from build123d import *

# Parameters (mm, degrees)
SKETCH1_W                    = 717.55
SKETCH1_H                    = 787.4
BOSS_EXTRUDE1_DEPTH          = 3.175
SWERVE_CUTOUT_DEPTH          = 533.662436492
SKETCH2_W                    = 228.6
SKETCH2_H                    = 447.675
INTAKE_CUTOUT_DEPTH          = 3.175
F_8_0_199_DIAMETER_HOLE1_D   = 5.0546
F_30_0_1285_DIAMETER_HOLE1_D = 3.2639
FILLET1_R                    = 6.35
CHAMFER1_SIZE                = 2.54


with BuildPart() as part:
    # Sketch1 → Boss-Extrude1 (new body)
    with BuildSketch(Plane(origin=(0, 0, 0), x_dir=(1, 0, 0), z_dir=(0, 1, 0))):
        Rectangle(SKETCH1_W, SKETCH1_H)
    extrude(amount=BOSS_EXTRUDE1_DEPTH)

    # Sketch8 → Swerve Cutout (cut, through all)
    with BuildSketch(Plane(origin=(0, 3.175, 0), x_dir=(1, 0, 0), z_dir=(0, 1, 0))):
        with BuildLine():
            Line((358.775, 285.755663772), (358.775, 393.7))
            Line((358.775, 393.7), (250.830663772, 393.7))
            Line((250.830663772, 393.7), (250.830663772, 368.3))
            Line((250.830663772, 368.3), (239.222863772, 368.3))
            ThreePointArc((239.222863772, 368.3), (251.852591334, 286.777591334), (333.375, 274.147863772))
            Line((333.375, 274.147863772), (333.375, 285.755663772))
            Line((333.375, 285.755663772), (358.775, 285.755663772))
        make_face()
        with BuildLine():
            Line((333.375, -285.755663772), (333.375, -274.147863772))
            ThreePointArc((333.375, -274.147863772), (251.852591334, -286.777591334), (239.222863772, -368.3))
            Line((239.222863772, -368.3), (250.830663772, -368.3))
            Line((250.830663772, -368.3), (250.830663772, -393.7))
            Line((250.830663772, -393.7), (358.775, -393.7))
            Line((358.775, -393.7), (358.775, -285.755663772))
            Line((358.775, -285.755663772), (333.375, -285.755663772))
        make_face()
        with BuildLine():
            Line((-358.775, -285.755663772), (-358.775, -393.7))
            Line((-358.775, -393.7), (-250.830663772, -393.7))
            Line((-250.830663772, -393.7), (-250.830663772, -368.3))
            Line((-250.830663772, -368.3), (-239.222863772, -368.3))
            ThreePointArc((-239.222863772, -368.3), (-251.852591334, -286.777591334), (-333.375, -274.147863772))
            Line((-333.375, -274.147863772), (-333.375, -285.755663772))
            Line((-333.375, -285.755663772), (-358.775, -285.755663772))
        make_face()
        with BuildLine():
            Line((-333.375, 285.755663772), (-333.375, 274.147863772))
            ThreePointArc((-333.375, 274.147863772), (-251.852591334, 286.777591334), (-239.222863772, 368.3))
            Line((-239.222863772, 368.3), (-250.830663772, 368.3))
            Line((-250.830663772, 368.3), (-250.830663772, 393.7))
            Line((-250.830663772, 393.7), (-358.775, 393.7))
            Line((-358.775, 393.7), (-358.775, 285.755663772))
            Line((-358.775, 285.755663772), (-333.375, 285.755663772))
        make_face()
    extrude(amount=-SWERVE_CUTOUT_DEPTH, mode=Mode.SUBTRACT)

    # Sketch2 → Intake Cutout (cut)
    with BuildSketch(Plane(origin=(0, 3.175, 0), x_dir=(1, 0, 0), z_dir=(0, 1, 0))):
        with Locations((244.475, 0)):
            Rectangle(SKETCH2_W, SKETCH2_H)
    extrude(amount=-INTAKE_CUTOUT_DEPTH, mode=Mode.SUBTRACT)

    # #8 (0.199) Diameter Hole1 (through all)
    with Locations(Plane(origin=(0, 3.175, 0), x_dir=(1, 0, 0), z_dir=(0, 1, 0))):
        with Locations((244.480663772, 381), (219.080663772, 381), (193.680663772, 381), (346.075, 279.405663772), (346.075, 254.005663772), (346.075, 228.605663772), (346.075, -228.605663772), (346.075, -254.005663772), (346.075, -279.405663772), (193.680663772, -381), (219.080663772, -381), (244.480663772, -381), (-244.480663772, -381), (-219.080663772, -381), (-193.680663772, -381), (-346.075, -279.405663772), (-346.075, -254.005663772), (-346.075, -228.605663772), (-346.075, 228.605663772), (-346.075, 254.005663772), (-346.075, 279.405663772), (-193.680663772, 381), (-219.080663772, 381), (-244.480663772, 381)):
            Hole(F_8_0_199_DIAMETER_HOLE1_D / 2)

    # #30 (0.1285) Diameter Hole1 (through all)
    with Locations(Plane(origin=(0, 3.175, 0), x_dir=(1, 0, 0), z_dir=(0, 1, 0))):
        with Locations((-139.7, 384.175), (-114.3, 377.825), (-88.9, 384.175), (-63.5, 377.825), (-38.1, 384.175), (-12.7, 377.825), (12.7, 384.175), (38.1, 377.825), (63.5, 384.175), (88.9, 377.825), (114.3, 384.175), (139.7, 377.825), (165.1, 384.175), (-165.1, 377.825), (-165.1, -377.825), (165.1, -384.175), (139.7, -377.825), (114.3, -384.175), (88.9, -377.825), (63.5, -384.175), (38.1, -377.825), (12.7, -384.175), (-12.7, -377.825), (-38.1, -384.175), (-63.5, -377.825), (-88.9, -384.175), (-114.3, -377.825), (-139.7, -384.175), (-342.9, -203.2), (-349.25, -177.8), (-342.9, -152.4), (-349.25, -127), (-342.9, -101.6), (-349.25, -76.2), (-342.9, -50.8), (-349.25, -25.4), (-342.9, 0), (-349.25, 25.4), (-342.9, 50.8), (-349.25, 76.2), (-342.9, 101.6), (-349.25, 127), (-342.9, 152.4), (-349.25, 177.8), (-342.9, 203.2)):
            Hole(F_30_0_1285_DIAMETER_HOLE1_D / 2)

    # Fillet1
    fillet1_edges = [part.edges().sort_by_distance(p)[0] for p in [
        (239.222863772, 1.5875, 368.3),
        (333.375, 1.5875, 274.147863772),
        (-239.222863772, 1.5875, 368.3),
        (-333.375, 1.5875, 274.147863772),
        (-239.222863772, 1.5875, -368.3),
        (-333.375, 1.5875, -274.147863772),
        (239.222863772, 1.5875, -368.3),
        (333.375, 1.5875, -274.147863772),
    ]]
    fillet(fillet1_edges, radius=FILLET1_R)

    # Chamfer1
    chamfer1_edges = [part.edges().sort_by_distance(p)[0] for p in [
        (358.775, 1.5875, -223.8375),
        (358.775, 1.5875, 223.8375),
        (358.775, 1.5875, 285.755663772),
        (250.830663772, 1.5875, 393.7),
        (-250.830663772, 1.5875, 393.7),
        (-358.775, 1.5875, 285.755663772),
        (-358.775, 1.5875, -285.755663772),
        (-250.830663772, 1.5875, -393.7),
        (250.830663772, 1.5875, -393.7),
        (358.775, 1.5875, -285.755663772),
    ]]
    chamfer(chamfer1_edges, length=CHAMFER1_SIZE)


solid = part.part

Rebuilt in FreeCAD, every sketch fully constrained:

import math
import FreeCAD as App
import Part
import Sketcher
from FreeCAD import Vector
Q = App.Units.Quantity


def edges_at(feature, points):
    """Names of the edges that pass closest to the given points."""
    edges = feature.Shape.Edges
    near = lambda p: min(range(len(edges)), key=lambda i: edges[i].distToShape(Part.Vertex(*p))[0])
    return sorted({f"Edge{near(p) + 1}" for p in points})


def add_polygon(sketch, points):
    """Adds a closed chain of lines whose ends are joined by coincident constraints."""
    first, n = sketch.GeometryCount, len(points)
    for a, b in zip(points, points[1:] + points[:1]):
        sketch.addGeometry(Part.LineSegment(App.Vector(*a, 0), App.Vector(*b, 0)), False)
    for i in range(n):
        sketch.addConstraint(Sketcher.Constraint("Coincident", first + i, 2, first + (i + 1) % n, 1))

doc = App.newDocument("Part")
body = doc.addObject("PartDesign::Body", "Body")

# Sketch on XZ plane
sketch1 = body.newObject("Sketcher::SketchObject", "Sketch")
sketch1.AttachmentSupport = (doc.getObject("XZ_Plane"), [""])
sketch1.MapMode = "FlatFace"
add_polygon(sketch1, [(-358.775, -393.7), (-358.775, 393.7), (358.775, 393.7), (358.775, -393.7)])  # lines 0-3
sketch1.addConstraint(Sketcher.Constraint("Vertical", 0))
sketch1.addConstraint(Sketcher.Constraint("Horizontal", 1))
sketch1.addConstraint(Sketcher.Constraint("Vertical", 2))
sketch1.addConstraint(Sketcher.Constraint("Horizontal", 3))
sketch1.addConstraint(Sketcher.Constraint("Symmetric", 0, 2, 2, 2, -1, 1))
sketch1.addConstraint(Sketcher.Constraint("DistanceY", 0, 1, 0, 2, Q("31 in")))
sketch1.addConstraint(Sketcher.Constraint("DistanceX", 1, 1, 1, 2, Q("28.25 in")))
pad1 = body.newObject("PartDesign::Pad", "Pad")
pad1.Profile = sketch1
pad1.Length = Q("0.125 in")
pad1.Reversed = True

# Sketch on XZ plane
sketch2 = body.newObject("Sketcher::SketchObject", "Sketch001")
sketch2.AttachmentSupport = (doc.getObject("XZ_Plane"), [""])
sketch2.MapMode = "FlatFace"
sketch2.AttachmentOffset = App.Placement(Vector(0, 0, -0.125 * 25.4), App.Rotation())
sketch2.addGeometry(Part.LineSegment(Vector(358.775, -285.755664, 0), Vector(358.775, -393.7, 0)), False)
sketch2.addGeometry(Part.LineSegment(Vector(358.775, -393.7, 0), Vector(250.830664, -393.7, 0)), False)
sketch2.addGeometry(Part.LineSegment(Vector(250.830664, -393.7, 0), Vector(250.830664, -368.3, 0)), False)
sketch2.addGeometry(Part.LineSegment(Vector(250.830664, -368.3, 0), Vector(239.222864, -368.3, 0)), False)
sketch2.addGeometry(Part.ArcOfCircle(Part.Circle(Vector(301.244, -336.169, 0), Vector(0, 0, 1), 69.85), math.radians(62.612892), math.radians(207.387108)), False)
sketch2.addGeometry(Part.LineSegment(Vector(333.375, -274.147864, 0), Vector(333.375, -285.755664, 0)), False)
sketch2.addGeometry(Part.LineSegment(Vector(333.375, -285.755664, 0), Vector(358.775, -285.755664, 0)), False)
sketch2.addGeometry(Part.LineSegment(Vector(333.375, 285.755664, 0), Vector(333.375, 274.147864, 0)), False)
sketch2.addGeometry(Part.ArcOfCircle(Part.Circle(Vector(301.244, 336.169, 0), Vector(0, 0, 1), 69.85), math.radians(152.612892), math.radians(297.387108)), False)
sketch2.addGeometry(Part.LineSegment(Vector(239.222864, 368.3, 0), Vector(250.830664, 368.3, 0)), False)
sketch2.addGeometry(Part.LineSegment(Vector(250.830664, 368.3, 0), Vector(250.830664, 393.7, 0)), False)
sketch2.addGeometry(Part.LineSegment(Vector(250.830664, 393.7, 0), Vector(358.775, 393.7, 0)), False)
sketch2.addGeometry(Part.LineSegment(Vector(358.775, 393.7, 0), Vector(358.775, 285.755664, 0)), False)
sketch2.addGeometry(Part.LineSegment(Vector(358.775, 285.755664, 0), Vector(333.375, 285.755664, 0)), False)
sketch2.addGeometry(Part.LineSegment(Vector(-358.775, 285.755664, 0), Vector(-358.775, 393.7, 0)), False)
sketch2.addGeometry(Part.LineSegment(Vector(-358.775, 393.7, 0), Vector(-250.830664, 393.7, 0)), False)
sketch2.addGeometry(Part.LineSegment(Vector(-250.830664, 393.7, 0), Vector(-250.830664, 368.3, 0)), False)
sketch2.addGeometry(Part.LineSegment(Vector(-250.830664, 368.3, 0), Vector(-239.222864, 368.3, 0)), False)
sketch2.addGeometry(Part.ArcOfCircle(Part.Circle(Vector(-301.244, 336.169, 0), Vector(0, 0, 1), 69.85), math.radians(-117.387108), math.radians(27.387108)), False)
sketch2.addGeometry(Part.LineSegment(Vector(-333.375, 274.147864, 0), Vector(-333.375, 285.755664, 0)), False)
sketch2.addGeometry(Part.LineSegment(Vector(-333.375, 285.755664, 0), Vector(-358.775, 285.755664, 0)), False)
sketch2.addGeometry(Part.LineSegment(Vector(-333.375, -285.755664, 0), Vector(-333.375, -274.147864, 0)), False)
sketch2.addGeometry(Part.ArcOfCircle(Part.Circle(Vector(-301.244, -336.169, 0), Vector(0, 0, 1), 69.85), math.radians(-27.387108), math.radians(117.387108)), False)
sketch2.addGeometry(Part.LineSegment(Vector(-239.222864, -368.3, 0), Vector(-250.830664, -368.3, 0)), False)
sketch2.addGeometry(Part.LineSegment(Vector(-250.830664, -368.3, 0), Vector(-250.830664, -393.7, 0)), False)
sketch2.addGeometry(Part.LineSegment(Vector(-250.830664, -393.7, 0), Vector(-358.775, -393.7, 0)), False)
sketch2.addGeometry(Part.LineSegment(Vector(-358.775, -393.7, 0), Vector(-358.775, -285.755664, 0)), False)
sketch2.addGeometry(Part.LineSegment(Vector(-358.775, -285.755664, 0), Vector(-333.375, -285.755664, 0)), False)
sketch2.addConstraint(Sketcher.Constraint("Coincident", 0, 2, 1, 1))
sketch2.addConstraint(Sketcher.Constraint("Coincident", 1, 2, 2, 1))
sketch2.addConstraint(Sketcher.Constraint("Coincident", 2, 2, 3, 1))
sketch2.addConstraint(Sketcher.Constraint("Coincident", 3, 2, 4, 2))
sketch2.addConstraint(Sketcher.Constraint("Coincident", 4, 1, 5, 1))
sketch2.addConstraint(Sketcher.Constraint("Coincident", 5, 2, 6, 1))
sketch2.addConstraint(Sketcher.Constraint("Coincident", 6, 2, 0, 1))
sketch2.addConstraint(Sketcher.Constraint("Coincident", 7, 2, 8, 2))
sketch2.addConstraint(Sketcher.Constraint("Coincident", 8, 1, 9, 1))
sketch2.addConstraint(Sketcher.Constraint("Coincident", 9, 2, 10, 1))
sketch2.addConstraint(Sketcher.Constraint("Coincident", 10, 2, 11, 1))
sketch2.addConstraint(Sketcher.Constraint("Coincident", 11, 2, 12, 1))
sketch2.addConstraint(Sketcher.Constraint("Coincident", 12, 2, 13, 1))
sketch2.addConstraint(Sketcher.Constraint("Coincident", 13, 2, 7, 1))
sketch2.addConstraint(Sketcher.Constraint("Coincident", 14, 2, 15, 1))
sketch2.addConstraint(Sketcher.Constraint("Coincident", 15, 2, 16, 1))
sketch2.addConstraint(Sketcher.Constraint("Coincident", 16, 2, 17, 1))
sketch2.addConstraint(Sketcher.Constraint("Coincident", 17, 2, 18, 2))
sketch2.addConstraint(Sketcher.Constraint("Coincident", 18, 1, 19, 1))
sketch2.addConstraint(Sketcher.Constraint("Coincident", 19, 2, 20, 1))
sketch2.addConstraint(Sketcher.Constraint("Coincident", 20, 2, 14, 1))
sketch2.addConstraint(Sketcher.Constraint("Coincident", 21, 2, 22, 2))
sketch2.addConstraint(Sketcher.Constraint("Coincident", 22, 1, 23, 1))
sketch2.addConstraint(Sketcher.Constraint("Coincident", 23, 2, 24, 1))
sketch2.addConstraint(Sketcher.Constraint("Coincident", 24, 2, 25, 1))
sketch2.addConstraint(Sketcher.Constraint("Coincident", 25, 2, 26, 1))
sketch2.addConstraint(Sketcher.Constraint("Coincident", 26, 2, 27, 1))
sketch2.addConstraint(Sketcher.Constraint("Coincident", 27, 2, 21, 1))
sketch2.addConstraint(Sketcher.Constraint("Vertical", 0))
sketch2.addConstraint(Sketcher.Constraint("Horizontal", 1))
sketch2.addConstraint(Sketcher.Constraint("Vertical", 2))
sketch2.addConstraint(Sketcher.Constraint("Horizontal", 3))
sketch2.addConstraint(Sketcher.Constraint("Vertical", 5))
sketch2.addConstraint(Sketcher.Constraint("Horizontal", 6))
sketch2.addConstraint(Sketcher.Constraint("Vertical", 7))
sketch2.addConstraint(Sketcher.Constraint("Horizontal", 9))
sketch2.addConstraint(Sketcher.Constraint("Vertical", 10))
sketch2.addConstraint(Sketcher.Constraint("Horizontal", 11))
sketch2.addConstraint(Sketcher.Constraint("Vertical", 12))
sketch2.addConstraint(Sketcher.Constraint("Horizontal", 13))
sketch2.addConstraint(Sketcher.Constraint("Vertical", 14))
sketch2.addConstraint(Sketcher.Constraint("Horizontal", 15))
sketch2.addConstraint(Sketcher.Constraint("Vertical", 16))
sketch2.addConstraint(Sketcher.Constraint("Horizontal", 17))
sketch2.addConstraint(Sketcher.Constraint("Vertical", 19))
sketch2.addConstraint(Sketcher.Constraint("Horizontal", 20))
sketch2.addConstraint(Sketcher.Constraint("Vertical", 21))
sketch2.addConstraint(Sketcher.Constraint("Horizontal", 23))
sketch2.addConstraint(Sketcher.Constraint("Vertical", 24))
sketch2.addConstraint(Sketcher.Constraint("Horizontal", 25))
sketch2.addConstraint(Sketcher.Constraint("Vertical", 26))
sketch2.addConstraint(Sketcher.Constraint("Horizontal", 27))
sketch2.addConstraint(Sketcher.Constraint("Equal", 4, 8))
sketch2.addConstraint(Sketcher.Constraint("Equal", 8, 18))
sketch2.addConstraint(Sketcher.Constraint("Equal", 18, 22))
sketch2.addConstraint(Sketcher.Constraint("Symmetric", 4, 3, 18, 3, -1, 1))
sketch2.addConstraint(Sketcher.Constraint("Symmetric", 8, 3, 22, 3, -1, 1))
sketch2.addConstraint(Sketcher.Constraint("Symmetric", 0, 2, 14, 2, -1, 1))
sketch2.addConstraint(Sketcher.Constraint("Symmetric", 2, 2, 16, 2, -1, 1))
sketch2.addConstraint(Sketcher.Constraint("Symmetric", 5, 2, 19, 2, -1, 1))
sketch2.addConstraint(Sketcher.Constraint("Symmetric", 9, 2, 23, 2, -1, 1))
sketch2.addConstraint(Sketcher.Constraint("Symmetric", 11, 2, 25, 2, -1, 1))
sketch2.addConstraint(Sketcher.Constraint("Symmetric", 13, 2, 27, 2, -1, 1))
sketch2.addConstraint(Sketcher.Constraint("Symmetric", 8, 3, 18, 3, -2))
sketch2.addConstraint(Sketcher.Constraint("Symmetric", 11, 2, 14, 2, -2))
sketch2.addConstraint(Sketcher.Constraint("Symmetric", 9, 2, 16, 2, -2))
sketch2.addConstraint(Sketcher.Constraint("Symmetric", 13, 2, 19, 2, -2))
sketch2.addConstraint(Sketcher.Constraint("Equal", 25, 0))
sketch2.addConstraint(Sketcher.Constraint("Equal", 27, 2))
sketch2.addConstraint(Sketcher.Constraint("Equal", 23, 5))
sketch2.addConstraint(Sketcher.Constraint("DistanceX", 6, 1, 6, 2, Q("1 in")))
sketch2.addConstraint(Sketcher.Constraint("Radius", 4, Q("2.75 in")))
sketch2.addConstraint(Sketcher.Constraint("DistanceY", 0, 2, -1, 1, Q("15.5 in")))
sketch2.addConstraint(Sketcher.Constraint("DistanceX", 3, 2, 3, 1, Q("0.457 in")))
sketch2.addConstraint(Sketcher.Constraint("DistanceX", -1, 1, 4, 3, Q("11.86 in")))
sketch2.addConstraint(Sketcher.Constraint("DistanceY", 4, 3, 8, 3, Q("26.47 in")))
pocket1 = body.newObject("PartDesign::Pocket", "Pocket")
pocket1.Profile = sketch2
pocket1.Type = "ThroughAll"
pocket1.Reversed = True

# Sketch on XZ plane
sketch3 = body.newObject("Sketcher::SketchObject", "Sketch002")
sketch3.AttachmentSupport = (doc.getObject("XZ_Plane"), [""])
sketch3.MapMode = "FlatFace"
sketch3.AttachmentOffset = App.Placement(Vector(0, 0, -0.125 * 25.4), App.Rotation())
add_polygon(sketch3, [(130.175, -223.8375), (130.175, 223.8375), (358.775, 223.8375), (358.775, -223.8375)])  # lines 0-3
sketch3.addConstraint(Sketcher.Constraint("Vertical", 0))
sketch3.addConstraint(Sketcher.Constraint("Horizontal", 1))
sketch3.addConstraint(Sketcher.Constraint("Vertical", 2))
sketch3.addConstraint(Sketcher.Constraint("Horizontal", 3))
sketch3.addConstraint(Sketcher.Constraint("DistanceX", 1, 1, 1, 2, Q("9 in")))
sketch3.addConstraint(Sketcher.Constraint("DistanceY", 0, 1, 0, 2, Q("17.625 in")))
sketch3.addConstraint(Sketcher.Constraint("DistanceX", -1, 1, 0, 2, Q("5.125 in")))
sketch3.addConstraint(Sketcher.Constraint("DistanceY", -1, 1, 0, 2, Q("8.8125 in")))
pocket2 = body.newObject("PartDesign::Pocket", "Pocket001")
pocket2.Profile = sketch3
pocket2.Length = Q("0.125 in")
pocket2.Reversed = True

# Sketch on XZ plane
sketch4 = body.newObject("Sketcher::SketchObject", "Sketch003")
sketch4.AttachmentSupport = (doc.getObject("XZ_Plane"), [""])
sketch4.MapMode = "FlatFace"
sketch4.AttachmentOffset = App.Placement(Vector(0, 0, -0.125 * 25.4), App.Rotation())
sketch4.addGeometry(Part.Circle(Vector(244.480664, -381, 0), Vector(0, 0, 1), 2.5273), False)
sketch4.addGeometry(Part.Circle(Vector(219.080664, -381, 0), Vector(0, 0, 1), 2.5273), False)
sketch4.addGeometry(Part.Circle(Vector(193.680664, -381, 0), Vector(0, 0, 1), 2.5273), False)
sketch4.addGeometry(Part.Circle(Vector(346.075, -279.405664, 0), Vector(0, 0, 1), 2.5273), False)
sketch4.addGeometry(Part.Circle(Vector(346.075, -254.005664, 0), Vector(0, 0, 1), 2.5273), False)
sketch4.addGeometry(Part.Circle(Vector(346.075, -228.605664, 0), Vector(0, 0, 1), 2.5273), False)
sketch4.addGeometry(Part.Circle(Vector(346.075, 228.605664, 0), Vector(0, 0, 1), 2.5273), False)
sketch4.addGeometry(Part.Circle(Vector(346.075, 254.005664, 0), Vector(0, 0, 1), 2.5273), False)
sketch4.addGeometry(Part.Circle(Vector(346.075, 279.405664, 0), Vector(0, 0, 1), 2.5273), False)
sketch4.addGeometry(Part.Circle(Vector(193.680664, 381, 0), Vector(0, 0, 1), 2.5273), False)
sketch4.addGeometry(Part.Circle(Vector(219.080664, 381, 0), Vector(0, 0, 1), 2.5273), False)
sketch4.addGeometry(Part.Circle(Vector(244.480664, 381, 0), Vector(0, 0, 1), 2.5273), False)
sketch4.addGeometry(Part.Circle(Vector(-244.480664, 381, 0), Vector(0, 0, 1), 2.5273), False)
sketch4.addGeometry(Part.Circle(Vector(-219.080664, 381, 0), Vector(0, 0, 1), 2.5273), False)
sketch4.addGeometry(Part.Circle(Vector(-193.680664, 381, 0), Vector(0, 0, 1), 2.5273), False)
sketch4.addGeometry(Part.Circle(Vector(-346.075, 279.405664, 0), Vector(0, 0, 1), 2.5273), False)
sketch4.addGeometry(Part.Circle(Vector(-346.075, 254.005664, 0), Vector(0, 0, 1), 2.5273), False)
sketch4.addGeometry(Part.Circle(Vector(-346.075, 228.605664, 0), Vector(0, 0, 1), 2.5273), False)
sketch4.addGeometry(Part.Circle(Vector(-346.075, -228.605664, 0), Vector(0, 0, 1), 2.5273), False)
sketch4.addGeometry(Part.Circle(Vector(-346.075, -254.005664, 0), Vector(0, 0, 1), 2.5273), False)
sketch4.addGeometry(Part.Circle(Vector(-346.075, -279.405664, 0), Vector(0, 0, 1), 2.5273), False)
sketch4.addGeometry(Part.Circle(Vector(-193.680664, -381, 0), Vector(0, 0, 1), 2.5273), False)
sketch4.addGeometry(Part.Circle(Vector(-219.080664, -381, 0), Vector(0, 0, 1), 2.5273), False)
sketch4.addGeometry(Part.Circle(Vector(-244.480664, -381, 0), Vector(0, 0, 1), 2.5273), False)
sketch4.addConstraint(Sketcher.Constraint("Equal", 0, 1))
sketch4.addConstraint(Sketcher.Constraint("Equal", 1, 2))
sketch4.addConstraint(Sketcher.Constraint("Equal", 2, 3))
sketch4.addConstraint(Sketcher.Constraint("Equal", 3, 4))
sketch4.addConstraint(Sketcher.Constraint("Equal", 4, 5))
sketch4.addConstraint(Sketcher.Constraint("Equal", 5, 6))
sketch4.addConstraint(Sketcher.Constraint("Equal", 6, 7))
sketch4.addConstraint(Sketcher.Constraint("Equal", 7, 8))
sketch4.addConstraint(Sketcher.Constraint("Equal", 8, 9))
sketch4.addConstraint(Sketcher.Constraint("Equal", 9, 10))
sketch4.addConstraint(Sketcher.Constraint("Equal", 10, 11))
sketch4.addConstraint(Sketcher.Constraint("Equal", 11, 12))
sketch4.addConstraint(Sketcher.Constraint("Equal", 12, 13))
sketch4.addConstraint(Sketcher.Constraint("Equal", 13, 14))
sketch4.addConstraint(Sketcher.Constraint("Equal", 14, 15))
sketch4.addConstraint(Sketcher.Constraint("Equal", 15, 16))
sketch4.addConstraint(Sketcher.Constraint("Equal", 16, 17))
sketch4.addConstraint(Sketcher.Constraint("Equal", 17, 18))
sketch4.addConstraint(Sketcher.Constraint("Equal", 18, 19))
sketch4.addConstraint(Sketcher.Constraint("Equal", 19, 20))
sketch4.addConstraint(Sketcher.Constraint("Equal", 20, 21))
sketch4.addConstraint(Sketcher.Constraint("Equal", 21, 22))
sketch4.addConstraint(Sketcher.Constraint("Equal", 22, 23))
sketch4.addConstraint(Sketcher.Constraint("Symmetric", 0, 3, 12, 3, -1, 1))
sketch4.addConstraint(Sketcher.Constraint("Symmetric", 1, 3, 13, 3, -1, 1))
sketch4.addConstraint(Sketcher.Constraint("Symmetric", 2, 3, 14, 3, -1, 1))
sketch4.addConstraint(Sketcher.Constraint("Symmetric", 3, 3, 15, 3, -1, 1))
sketch4.addConstraint(Sketcher.Constraint("Symmetric", 4, 3, 16, 3, -1, 1))
sketch4.addConstraint(Sketcher.Constraint("Symmetric", 5, 3, 17, 3, -1, 1))
sketch4.addConstraint(Sketcher.Constraint("Symmetric", 6, 3, 18, 3, -1, 1))
sketch4.addConstraint(Sketcher.Constraint("Symmetric", 7, 3, 19, 3, -1, 1))
sketch4.addConstraint(Sketcher.Constraint("Symmetric", 8, 3, 20, 3, -1, 1))
sketch4.addConstraint(Sketcher.Constraint("Symmetric", 9, 3, 21, 3, -1, 1))
sketch4.addConstraint(Sketcher.Constraint("Symmetric", 10, 3, 22, 3, -1, 1))
sketch4.addConstraint(Sketcher.Constraint("Symmetric", 11, 3, 23, 3, -1, 1))
sketch4.addConstraint(Sketcher.Constraint("Symmetric", 11, 3, 12, 3, -2))
sketch4.addConstraint(Sketcher.Constraint("Symmetric", 10, 3, 13, 3, -2))
sketch4.addConstraint(Sketcher.Constraint("Symmetric", 9, 3, 14, 3, -2))
sketch4.addConstraint(Sketcher.Constraint("Symmetric", 8, 3, 15, 3, -2))
sketch4.addConstraint(Sketcher.Constraint("Symmetric", 7, 3, 16, 3, -2))
sketch4.addConstraint(Sketcher.Constraint("Symmetric", 6, 3, 17, 3, -2))
sketch4.addConstraint(Sketcher.Constraint("Horizontal", 0, 3, 1, 3))
sketch4.addConstraint(Sketcher.Constraint("Horizontal", 1, 3, 2, 3))
sketch4.addConstraint(Sketcher.Constraint("Vertical", 3, 3, 4, 3))
sketch4.addConstraint(Sketcher.Constraint("Vertical", 4, 3, 5, 3))
sketch4.addConstraint(Sketcher.Constraint("Diameter", 0, Q("0.199 in")))
sketch4.addConstraint(Sketcher.Constraint("DistanceY", 0, 3, -1, 1, Q("15 in")))
sketch4.addConstraint(Sketcher.Constraint("DistanceX", 1, 3, 0, 3, Q("1 in")))
sketch4.addConstraint(Sketcher.Constraint("DistanceX", 2, 3, 1, 3, Q("1 in")))
sketch4.addConstraint(Sketcher.Constraint("DistanceY", 3, 3, 4, 3, Q("1 in")))
sketch4.addConstraint(Sketcher.Constraint("DistanceY", 4, 3, 5, 3, Q("1 in")))
sketch4.addConstraint(Sketcher.Constraint("DistanceX", -1, 1, 3, 3, Q("13.625 in")))
sketch4.addConstraint(Sketcher.Constraint("DistanceX", -1, 1, 0, 3, 244.480664))
sketch4.addConstraint(Sketcher.Constraint("DistanceY", 3, 3, -1, 1, 279.405664))
doc.recompute()
hole = body.newObject("PartDesign::Hole", "Hole")
hole.Profile = sketch4
hole.ThreadType = "None"
hole.Diameter = Q("0.199 in")
hole.DepthType = "ThroughAll"
hole.Reversed = True

# Sketch on XZ plane
sketch5 = body.newObject("Sketcher::SketchObject", "Sketch004")
sketch5.AttachmentSupport = (doc.getObject("XZ_Plane"), [""])
sketch5.MapMode = "FlatFace"
sketch5.AttachmentOffset = App.Placement(Vector(0, 0, -0.125 * 25.4), App.Rotation())
sketch5.addGeometry(Part.Circle(Vector(-139.7, -384.175, 0), Vector(0, 0, 1), 1.63195), False)
sketch5.addGeometry(Part.Circle(Vector(-114.3, -377.825, 0), Vector(0, 0, 1), 1.63195), False)
sketch5.addGeometry(Part.Circle(Vector(-88.9, -384.175, 0), Vector(0, 0, 1), 1.63195), False)
sketch5.addGeometry(Part.Circle(Vector(-63.5, -377.825, 0), Vector(0, 0, 1), 1.63195), False)
sketch5.addGeometry(Part.Circle(Vector(-38.1, -384.175, 0), Vector(0, 0, 1), 1.63195), False)
sketch5.addGeometry(Part.Circle(Vector(-12.7, -377.825, 0), Vector(0, 0, 1), 1.63195), False)
sketch5.addGeometry(Part.Circle(Vector(12.7, -384.175, 0), Vector(0, 0, 1), 1.63195), False)
sketch5.addGeometry(Part.Circle(Vector(38.1, -377.825, 0), Vector(0, 0, 1), 1.63195), False)
sketch5.addGeometry(Part.Circle(Vector(63.5, -384.175, 0), Vector(0, 0, 1), 1.63195), False)
sketch5.addGeometry(Part.Circle(Vector(88.9, -377.825, 0), Vector(0, 0, 1), 1.63195), False)
sketch5.addGeometry(Part.Circle(Vector(114.3, -384.175, 0), Vector(0, 0, 1), 1.63195), False)
sketch5.addGeometry(Part.Circle(Vector(139.7, -377.825, 0), Vector(0, 0, 1), 1.63195), False)
sketch5.addGeometry(Part.Circle(Vector(165.1, -384.175, 0), Vector(0, 0, 1), 1.63195), False)
sketch5.addGeometry(Part.Circle(Vector(-165.1, -377.825, 0), Vector(0, 0, 1), 1.63195), False)
sketch5.addGeometry(Part.Circle(Vector(-165.1, 377.825, 0), Vector(0, 0, 1), 1.63195), False)
sketch5.addGeometry(Part.Circle(Vector(165.1, 384.175, 0), Vector(0, 0, 1), 1.63195), False)
sketch5.addGeometry(Part.Circle(Vector(139.7, 377.825, 0), Vector(0, 0, 1), 1.63195), False)
sketch5.addGeometry(Part.Circle(Vector(114.3, 384.175, 0), Vector(0, 0, 1), 1.63195), False)
sketch5.addGeometry(Part.Circle(Vector(88.9, 377.825, 0), Vector(0, 0, 1), 1.63195), False)
sketch5.addGeometry(Part.Circle(Vector(63.5, 384.175, 0), Vector(0, 0, 1), 1.63195), False)
sketch5.addGeometry(Part.Circle(Vector(38.1, 377.825, 0), Vector(0, 0, 1), 1.63195), False)
sketch5.addGeometry(Part.Circle(Vector(12.7, 384.175, 0), Vector(0, 0, 1), 1.63195), False)
sketch5.addGeometry(Part.Circle(Vector(-12.7, 377.825, 0), Vector(0, 0, 1), 1.63195), False)
sketch5.addGeometry(Part.Circle(Vector(-38.1, 384.175, 0), Vector(0, 0, 1), 1.63195), False)
sketch5.addGeometry(Part.Circle(Vector(-63.5, 377.825, 0), Vector(0, 0, 1), 1.63195), False)
sketch5.addGeometry(Part.Circle(Vector(-88.9, 384.175, 0), Vector(0, 0, 1), 1.63195), False)
sketch5.addGeometry(Part.Circle(Vector(-114.3, 377.825, 0), Vector(0, 0, 1), 1.63195), False)
sketch5.addGeometry(Part.Circle(Vector(-139.7, 384.175, 0), Vector(0, 0, 1), 1.63195), False)
sketch5.addGeometry(Part.Circle(Vector(-342.9, 203.2, 0), Vector(0, 0, 1), 1.63195), False)
sketch5.addGeometry(Part.Circle(Vector(-349.25, 177.8, 0), Vector(0, 0, 1), 1.63195), False)
sketch5.addGeometry(Part.Circle(Vector(-342.9, 152.4, 0), Vector(0, 0, 1), 1.63195), False)
sketch5.addGeometry(Part.Circle(Vector(-349.25, 127, 0), Vector(0, 0, 1), 1.63195), False)
sketch5.addGeometry(Part.Circle(Vector(-342.9, 101.6, 0), Vector(0, 0, 1), 1.63195), False)
sketch5.addGeometry(Part.Circle(Vector(-349.25, 76.2, 0), Vector(0, 0, 1), 1.63195), False)
sketch5.addGeometry(Part.Circle(Vector(-342.9, 50.8, 0), Vector(0, 0, 1), 1.63195), False)
sketch5.addGeometry(Part.Circle(Vector(-349.25, 25.4, 0), Vector(0, 0, 1), 1.63195), False)
sketch5.addGeometry(Part.Circle(Vector(-342.9, 0, 0), Vector(0, 0, 1), 1.63195), False)
sketch5.addGeometry(Part.Circle(Vector(-349.25, -25.4, 0), Vector(0, 0, 1), 1.63195), False)
sketch5.addGeometry(Part.Circle(Vector(-342.9, -50.8, 0), Vector(0, 0, 1), 1.63195), False)
sketch5.addGeometry(Part.Circle(Vector(-349.25, -76.2, 0), Vector(0, 0, 1), 1.63195), False)
sketch5.addGeometry(Part.Circle(Vector(-342.9, -101.6, 0), Vector(0, 0, 1), 1.63195), False)
sketch5.addGeometry(Part.Circle(Vector(-349.25, -127, 0), Vector(0, 0, 1), 1.63195), False)
sketch5.addGeometry(Part.Circle(Vector(-342.9, -152.4, 0), Vector(0, 0, 1), 1.63195), False)
sketch5.addGeometry(Part.Circle(Vector(-349.25, -177.8, 0), Vector(0, 0, 1), 1.63195), False)
sketch5.addGeometry(Part.Circle(Vector(-342.9, -203.2, 0), Vector(0, 0, 1), 1.63195), False)
sketch5.addConstraint(Sketcher.Constraint("Equal", 0, 1))
sketch5.addConstraint(Sketcher.Constraint("Equal", 1, 2))
sketch5.addConstraint(Sketcher.Constraint("Equal", 2, 3))
sketch5.addConstraint(Sketcher.Constraint("Equal", 3, 4))
sketch5.addConstraint(Sketcher.Constraint("Equal", 4, 5))
sketch5.addConstraint(Sketcher.Constraint("Equal", 5, 6))
sketch5.addConstraint(Sketcher.Constraint("Equal", 6, 7))
sketch5.addConstraint(Sketcher.Constraint("Equal", 7, 8))
sketch5.addConstraint(Sketcher.Constraint("Equal", 8, 9))
sketch5.addConstraint(Sketcher.Constraint("Equal", 9, 10))
sketch5.addConstraint(Sketcher.Constraint("Equal", 10, 11))
sketch5.addConstraint(Sketcher.Constraint("Equal", 11, 12))
sketch5.addConstraint(Sketcher.Constraint("Equal", 12, 13))
sketch5.addConstraint(Sketcher.Constraint("Equal", 13, 14))
sketch5.addConstraint(Sketcher.Constraint("Equal", 14, 15))
sketch5.addConstraint(Sketcher.Constraint("Equal", 15, 16))
sketch5.addConstraint(Sketcher.Constraint("Equal", 16, 17))
sketch5.addConstraint(Sketcher.Constraint("Equal", 17, 18))
sketch5.addConstraint(Sketcher.Constraint("Equal", 18, 19))
sketch5.addConstraint(Sketcher.Constraint("Equal", 19, 20))
sketch5.addConstraint(Sketcher.Constraint("Equal", 20, 21))
sketch5.addConstraint(Sketcher.Constraint("Equal", 21, 22))
sketch5.addConstraint(Sketcher.Constraint("Equal", 22, 23))
sketch5.addConstraint(Sketcher.Constraint("Equal", 23, 24))
sketch5.addConstraint(Sketcher.Constraint("Equal", 24, 25))
sketch5.addConstraint(Sketcher.Constraint("Equal", 25, 26))
sketch5.addConstraint(Sketcher.Constraint("Equal", 26, 27))
sketch5.addConstraint(Sketcher.Constraint("Equal", 27, 28))
sketch5.addConstraint(Sketcher.Constraint("Equal", 28, 29))
sketch5.addConstraint(Sketcher.Constraint("Equal", 29, 30))
sketch5.addConstraint(Sketcher.Constraint("Equal", 30, 31))
sketch5.addConstraint(Sketcher.Constraint("Equal", 31, 32))
sketch5.addConstraint(Sketcher.Constraint("Equal", 32, 33))
sketch5.addConstraint(Sketcher.Constraint("Equal", 33, 34))
sketch5.addConstraint(Sketcher.Constraint("Equal", 34, 35))
sketch5.addConstraint(Sketcher.Constraint("Equal", 35, 36))
sketch5.addConstraint(Sketcher.Constraint("Equal", 36, 37))
sketch5.addConstraint(Sketcher.Constraint("Equal", 37, 38))
sketch5.addConstraint(Sketcher.Constraint("Equal", 38, 39))
sketch5.addConstraint(Sketcher.Constraint("Equal", 39, 40))
sketch5.addConstraint(Sketcher.Constraint("Equal", 40, 41))
sketch5.addConstraint(Sketcher.Constraint("Equal", 41, 42))
sketch5.addConstraint(Sketcher.Constraint("Equal", 42, 43))
sketch5.addConstraint(Sketcher.Constraint("Equal", 43, 44))
sketch5.addConstraint(Sketcher.Constraint("Symmetric", 13, 3, 14, 3, -1))
sketch5.addConstraint(Sketcher.Constraint("Symmetric", 12, 3, 15, 3, -1))
sketch5.addConstraint(Sketcher.Constraint("Symmetric", 11, 3, 16, 3, -1))
sketch5.addConstraint(Sketcher.Constraint("Symmetric", 10, 3, 17, 3, -1))
sketch5.addConstraint(Sketcher.Constraint("Symmetric", 9, 3, 18, 3, -1))
sketch5.addConstraint(Sketcher.Constraint("Symmetric", 8, 3, 19, 3, -1))
sketch5.addConstraint(Sketcher.Constraint("Symmetric", 7, 3, 20, 3, -1))
sketch5.addConstraint(Sketcher.Constraint("Symmetric", 6, 3, 21, 3, -1))
sketch5.addConstraint(Sketcher.Constraint("Symmetric", 5, 3, 22, 3, -1))
sketch5.addConstraint(Sketcher.Constraint("Symmetric", 4, 3, 23, 3, -1))
sketch5.addConstraint(Sketcher.Constraint("Symmetric", 3, 3, 24, 3, -1))
sketch5.addConstraint(Sketcher.Constraint("Symmetric", 2, 3, 25, 3, -1))
sketch5.addConstraint(Sketcher.Constraint("Symmetric", 1, 3, 26, 3, -1))
sketch5.addConstraint(Sketcher.Constraint("Symmetric", 0, 3, 27, 3, -1))
sketch5.addConstraint(Sketcher.Constraint("Symmetric", 35, 3, 37, 3, -1))
sketch5.addConstraint(Sketcher.Constraint("Symmetric", 34, 3, 38, 3, -1))
sketch5.addConstraint(Sketcher.Constraint("Symmetric", 33, 3, 39, 3, -1))
sketch5.addConstraint(Sketcher.Constraint("Symmetric", 32, 3, 40, 3, -1))
sketch5.addConstraint(Sketcher.Constraint("Symmetric", 31, 3, 41, 3, -1))
sketch5.addConstraint(Sketcher.Constraint("Symmetric", 30, 3, 42, 3, -1))
sketch5.addConstraint(Sketcher.Constraint("Symmetric", 29, 3, 43, 3, -1))
sketch5.addConstraint(Sketcher.Constraint("Symmetric", 28, 3, 44, 3, -1))
sketch5.addConstraint(Sketcher.Constraint("PointOnObject", 36, 3, -1))
sketch5.addConstraint(Sketcher.Constraint("Horizontal", 0, 3, 2, 3))
sketch5.addConstraint(Sketcher.Constraint("Horizontal", 1, 3, 3, 3))
sketch5.addConstraint(Sketcher.Constraint("Horizontal", 2, 3, 4, 3))
sketch5.addConstraint(Sketcher.Constraint("Horizontal", 3, 3, 5, 3))
sketch5.addConstraint(Sketcher.Constraint("Horizontal", 4, 3, 6, 3))
sketch5.addConstraint(Sketcher.Constraint("Horizontal", 5, 3, 7, 3))
sketch5.addConstraint(Sketcher.Constraint("Horizontal", 6, 3, 8, 3))
sketch5.addConstraint(Sketcher.Constraint("Horizontal", 7, 3, 9, 3))
sketch5.addConstraint(Sketcher.Constraint("Horizontal", 8, 3, 10, 3))
sketch5.addConstraint(Sketcher.Constraint("Horizontal", 9, 3, 11, 3))
sketch5.addConstraint(Sketcher.Constraint("Horizontal", 10, 3, 12, 3))
sketch5.addConstraint(Sketcher.Constraint("Horizontal", 11, 3, 13, 3))
sketch5.addConstraint(Sketcher.Constraint("Vertical", 28, 3, 30, 3))
sketch5.addConstraint(Sketcher.Constraint("Vertical", 29, 3, 31, 3))
sketch5.addConstraint(Sketcher.Constraint("Vertical", 30, 3, 32, 3))
sketch5.addConstraint(Sketcher.Constraint("Vertical", 31, 3, 33, 3))
sketch5.addConstraint(Sketcher.Constraint("Vertical", 32, 3, 34, 3))
sketch5.addConstraint(Sketcher.Constraint("Vertical", 33, 3, 35, 3))
sketch5.addConstraint(Sketcher.Constraint("Vertical", 34, 3, 36, 3))
sketch5.addConstraint(Sketcher.Constraint("DistanceY", -1, 1, 28, 3, Q("8 in")))
sketch5.addConstraint(Sketcher.Constraint("DistanceY", -1, 1, 29, 3, Q("7 in")))
sketch5.addConstraint(Sketcher.Constraint("DistanceY", -1, 1, 30, 3, Q("6 in")))
sketch5.addConstraint(Sketcher.Constraint("DistanceY", -1, 1, 31, 3, Q("5 in")))
sketch5.addConstraint(Sketcher.Constraint("DistanceY", -1, 1, 32, 3, Q("4 in")))
sketch5.addConstraint(Sketcher.Constraint("DistanceY", -1, 1, 33, 3, Q("3 in")))
sketch5.addConstraint(Sketcher.Constraint("DistanceY", -1, 1, 34, 3, Q("2 in")))
sketch5.addConstraint(Sketcher.Constraint("DistanceY", -1, 1, 35, 3, Q("1 in")))
sketch5.addConstraint(Sketcher.Constraint("DistanceX", 0, 3, 1, 3, Q("1 in")))
sketch5.addConstraint(Sketcher.Constraint("DistanceX", 1, 3, 2, 3, Q("1 in")))
sketch5.addConstraint(Sketcher.Constraint("DistanceX", 2, 3, 3, 3, Q("1 in")))
sketch5.addConstraint(Sketcher.Constraint("DistanceX", 3, 3, 4, 3, Q("1 in")))
sketch5.addConstraint(Sketcher.Constraint("DistanceX", 4, 3, 5, 3, Q("1 in")))
sketch5.addConstraint(Sketcher.Constraint("DistanceX", 5, 3, 6, 3, Q("1 in")))
sketch5.addConstraint(Sketcher.Constraint("DistanceX", 6, 3, 7, 3, Q("1 in")))
sketch5.addConstraint(Sketcher.Constraint("DistanceX", 7, 3, 8, 3, Q("1 in")))
sketch5.addConstraint(Sketcher.Constraint("DistanceX", 8, 3, 9, 3, Q("1 in")))
sketch5.addConstraint(Sketcher.Constraint("DistanceX", 9, 3, 10, 3, Q("1 in")))
sketch5.addConstraint(Sketcher.Constraint("DistanceX", 10, 3, 11, 3, Q("1 in")))
sketch5.addConstraint(Sketcher.Constraint("DistanceX", 11, 3, 12, 3, Q("1 in")))
sketch5.addConstraint(Sketcher.Constraint("DistanceX", 13, 3, 0, 3, Q("1 in")))
sketch5.addConstraint(Sketcher.Constraint("DistanceY", 0, 3, 14, 3, Q("30 in")))
sketch5.addConstraint(Sketcher.Constraint("DistanceX", 28, 3, 14, 3, Q("7 in")))
sketch5.addConstraint(Sketcher.Constraint("Diameter", 0, Q("0.1285 in")))
sketch5.addConstraint(Sketcher.Constraint("DistanceX", 0, 3, -1, 1, Q("5.5 in")))
sketch5.addConstraint(Sketcher.Constraint("DistanceX", 29, 3, -1, 1, Q("13.75 in")))
sketch5.addConstraint(Sketcher.Constraint("DistanceY", 0, 3, 1, 3, Q("0.25 in")))
doc.recompute()
hole2 = body.newObject("PartDesign::Hole", "Hole001")
hole2.Profile = sketch5
hole2.ThreadType = "None"
hole2.Diameter = Q("0.1285 in")
hole2.DepthType = "ThroughAll"
hole2.Reversed = True
doc.recompute()

fillet = body.newObject("PartDesign::Fillet", "Fillet")
fillet.Base = (hole2, edges_at(hole2, [
    (239.223, 1.587, 368.3),
    (333.375, 1.587, 274.148),
    (-239.223, 1.587, 368.3),
    (-333.375, 1.587, 274.148),
    (-239.223, 1.587, -368.3),
    (-333.375, 1.587, -274.148),
    (239.223, 1.587, -368.3),
    (333.375, 1.587, -274.148),
]))
fillet.Radius = Q("0.25 in")
doc.recompute()

chamfer = body.newObject("PartDesign::Chamfer", "Chamfer")
chamfer.Base = (fillet, edges_at(fillet, [
    (358.775, 1.587, -223.838),
    (358.775, 1.587, 223.838),
    (358.775, 1.587, 285.756),
    (250.831, 1.587, 393.7),
    (-250.831, 1.587, 393.7),
    (-358.775, 1.587, 285.756),
    (-358.775, 1.587, -285.756),
    (-250.831, 1.587, -393.7),
    (250.831, 1.587, -393.7),
    (358.775, 1.587, -285.756),
]))
chamfer.Size = Q("0.1 in")

doc.recompute()
